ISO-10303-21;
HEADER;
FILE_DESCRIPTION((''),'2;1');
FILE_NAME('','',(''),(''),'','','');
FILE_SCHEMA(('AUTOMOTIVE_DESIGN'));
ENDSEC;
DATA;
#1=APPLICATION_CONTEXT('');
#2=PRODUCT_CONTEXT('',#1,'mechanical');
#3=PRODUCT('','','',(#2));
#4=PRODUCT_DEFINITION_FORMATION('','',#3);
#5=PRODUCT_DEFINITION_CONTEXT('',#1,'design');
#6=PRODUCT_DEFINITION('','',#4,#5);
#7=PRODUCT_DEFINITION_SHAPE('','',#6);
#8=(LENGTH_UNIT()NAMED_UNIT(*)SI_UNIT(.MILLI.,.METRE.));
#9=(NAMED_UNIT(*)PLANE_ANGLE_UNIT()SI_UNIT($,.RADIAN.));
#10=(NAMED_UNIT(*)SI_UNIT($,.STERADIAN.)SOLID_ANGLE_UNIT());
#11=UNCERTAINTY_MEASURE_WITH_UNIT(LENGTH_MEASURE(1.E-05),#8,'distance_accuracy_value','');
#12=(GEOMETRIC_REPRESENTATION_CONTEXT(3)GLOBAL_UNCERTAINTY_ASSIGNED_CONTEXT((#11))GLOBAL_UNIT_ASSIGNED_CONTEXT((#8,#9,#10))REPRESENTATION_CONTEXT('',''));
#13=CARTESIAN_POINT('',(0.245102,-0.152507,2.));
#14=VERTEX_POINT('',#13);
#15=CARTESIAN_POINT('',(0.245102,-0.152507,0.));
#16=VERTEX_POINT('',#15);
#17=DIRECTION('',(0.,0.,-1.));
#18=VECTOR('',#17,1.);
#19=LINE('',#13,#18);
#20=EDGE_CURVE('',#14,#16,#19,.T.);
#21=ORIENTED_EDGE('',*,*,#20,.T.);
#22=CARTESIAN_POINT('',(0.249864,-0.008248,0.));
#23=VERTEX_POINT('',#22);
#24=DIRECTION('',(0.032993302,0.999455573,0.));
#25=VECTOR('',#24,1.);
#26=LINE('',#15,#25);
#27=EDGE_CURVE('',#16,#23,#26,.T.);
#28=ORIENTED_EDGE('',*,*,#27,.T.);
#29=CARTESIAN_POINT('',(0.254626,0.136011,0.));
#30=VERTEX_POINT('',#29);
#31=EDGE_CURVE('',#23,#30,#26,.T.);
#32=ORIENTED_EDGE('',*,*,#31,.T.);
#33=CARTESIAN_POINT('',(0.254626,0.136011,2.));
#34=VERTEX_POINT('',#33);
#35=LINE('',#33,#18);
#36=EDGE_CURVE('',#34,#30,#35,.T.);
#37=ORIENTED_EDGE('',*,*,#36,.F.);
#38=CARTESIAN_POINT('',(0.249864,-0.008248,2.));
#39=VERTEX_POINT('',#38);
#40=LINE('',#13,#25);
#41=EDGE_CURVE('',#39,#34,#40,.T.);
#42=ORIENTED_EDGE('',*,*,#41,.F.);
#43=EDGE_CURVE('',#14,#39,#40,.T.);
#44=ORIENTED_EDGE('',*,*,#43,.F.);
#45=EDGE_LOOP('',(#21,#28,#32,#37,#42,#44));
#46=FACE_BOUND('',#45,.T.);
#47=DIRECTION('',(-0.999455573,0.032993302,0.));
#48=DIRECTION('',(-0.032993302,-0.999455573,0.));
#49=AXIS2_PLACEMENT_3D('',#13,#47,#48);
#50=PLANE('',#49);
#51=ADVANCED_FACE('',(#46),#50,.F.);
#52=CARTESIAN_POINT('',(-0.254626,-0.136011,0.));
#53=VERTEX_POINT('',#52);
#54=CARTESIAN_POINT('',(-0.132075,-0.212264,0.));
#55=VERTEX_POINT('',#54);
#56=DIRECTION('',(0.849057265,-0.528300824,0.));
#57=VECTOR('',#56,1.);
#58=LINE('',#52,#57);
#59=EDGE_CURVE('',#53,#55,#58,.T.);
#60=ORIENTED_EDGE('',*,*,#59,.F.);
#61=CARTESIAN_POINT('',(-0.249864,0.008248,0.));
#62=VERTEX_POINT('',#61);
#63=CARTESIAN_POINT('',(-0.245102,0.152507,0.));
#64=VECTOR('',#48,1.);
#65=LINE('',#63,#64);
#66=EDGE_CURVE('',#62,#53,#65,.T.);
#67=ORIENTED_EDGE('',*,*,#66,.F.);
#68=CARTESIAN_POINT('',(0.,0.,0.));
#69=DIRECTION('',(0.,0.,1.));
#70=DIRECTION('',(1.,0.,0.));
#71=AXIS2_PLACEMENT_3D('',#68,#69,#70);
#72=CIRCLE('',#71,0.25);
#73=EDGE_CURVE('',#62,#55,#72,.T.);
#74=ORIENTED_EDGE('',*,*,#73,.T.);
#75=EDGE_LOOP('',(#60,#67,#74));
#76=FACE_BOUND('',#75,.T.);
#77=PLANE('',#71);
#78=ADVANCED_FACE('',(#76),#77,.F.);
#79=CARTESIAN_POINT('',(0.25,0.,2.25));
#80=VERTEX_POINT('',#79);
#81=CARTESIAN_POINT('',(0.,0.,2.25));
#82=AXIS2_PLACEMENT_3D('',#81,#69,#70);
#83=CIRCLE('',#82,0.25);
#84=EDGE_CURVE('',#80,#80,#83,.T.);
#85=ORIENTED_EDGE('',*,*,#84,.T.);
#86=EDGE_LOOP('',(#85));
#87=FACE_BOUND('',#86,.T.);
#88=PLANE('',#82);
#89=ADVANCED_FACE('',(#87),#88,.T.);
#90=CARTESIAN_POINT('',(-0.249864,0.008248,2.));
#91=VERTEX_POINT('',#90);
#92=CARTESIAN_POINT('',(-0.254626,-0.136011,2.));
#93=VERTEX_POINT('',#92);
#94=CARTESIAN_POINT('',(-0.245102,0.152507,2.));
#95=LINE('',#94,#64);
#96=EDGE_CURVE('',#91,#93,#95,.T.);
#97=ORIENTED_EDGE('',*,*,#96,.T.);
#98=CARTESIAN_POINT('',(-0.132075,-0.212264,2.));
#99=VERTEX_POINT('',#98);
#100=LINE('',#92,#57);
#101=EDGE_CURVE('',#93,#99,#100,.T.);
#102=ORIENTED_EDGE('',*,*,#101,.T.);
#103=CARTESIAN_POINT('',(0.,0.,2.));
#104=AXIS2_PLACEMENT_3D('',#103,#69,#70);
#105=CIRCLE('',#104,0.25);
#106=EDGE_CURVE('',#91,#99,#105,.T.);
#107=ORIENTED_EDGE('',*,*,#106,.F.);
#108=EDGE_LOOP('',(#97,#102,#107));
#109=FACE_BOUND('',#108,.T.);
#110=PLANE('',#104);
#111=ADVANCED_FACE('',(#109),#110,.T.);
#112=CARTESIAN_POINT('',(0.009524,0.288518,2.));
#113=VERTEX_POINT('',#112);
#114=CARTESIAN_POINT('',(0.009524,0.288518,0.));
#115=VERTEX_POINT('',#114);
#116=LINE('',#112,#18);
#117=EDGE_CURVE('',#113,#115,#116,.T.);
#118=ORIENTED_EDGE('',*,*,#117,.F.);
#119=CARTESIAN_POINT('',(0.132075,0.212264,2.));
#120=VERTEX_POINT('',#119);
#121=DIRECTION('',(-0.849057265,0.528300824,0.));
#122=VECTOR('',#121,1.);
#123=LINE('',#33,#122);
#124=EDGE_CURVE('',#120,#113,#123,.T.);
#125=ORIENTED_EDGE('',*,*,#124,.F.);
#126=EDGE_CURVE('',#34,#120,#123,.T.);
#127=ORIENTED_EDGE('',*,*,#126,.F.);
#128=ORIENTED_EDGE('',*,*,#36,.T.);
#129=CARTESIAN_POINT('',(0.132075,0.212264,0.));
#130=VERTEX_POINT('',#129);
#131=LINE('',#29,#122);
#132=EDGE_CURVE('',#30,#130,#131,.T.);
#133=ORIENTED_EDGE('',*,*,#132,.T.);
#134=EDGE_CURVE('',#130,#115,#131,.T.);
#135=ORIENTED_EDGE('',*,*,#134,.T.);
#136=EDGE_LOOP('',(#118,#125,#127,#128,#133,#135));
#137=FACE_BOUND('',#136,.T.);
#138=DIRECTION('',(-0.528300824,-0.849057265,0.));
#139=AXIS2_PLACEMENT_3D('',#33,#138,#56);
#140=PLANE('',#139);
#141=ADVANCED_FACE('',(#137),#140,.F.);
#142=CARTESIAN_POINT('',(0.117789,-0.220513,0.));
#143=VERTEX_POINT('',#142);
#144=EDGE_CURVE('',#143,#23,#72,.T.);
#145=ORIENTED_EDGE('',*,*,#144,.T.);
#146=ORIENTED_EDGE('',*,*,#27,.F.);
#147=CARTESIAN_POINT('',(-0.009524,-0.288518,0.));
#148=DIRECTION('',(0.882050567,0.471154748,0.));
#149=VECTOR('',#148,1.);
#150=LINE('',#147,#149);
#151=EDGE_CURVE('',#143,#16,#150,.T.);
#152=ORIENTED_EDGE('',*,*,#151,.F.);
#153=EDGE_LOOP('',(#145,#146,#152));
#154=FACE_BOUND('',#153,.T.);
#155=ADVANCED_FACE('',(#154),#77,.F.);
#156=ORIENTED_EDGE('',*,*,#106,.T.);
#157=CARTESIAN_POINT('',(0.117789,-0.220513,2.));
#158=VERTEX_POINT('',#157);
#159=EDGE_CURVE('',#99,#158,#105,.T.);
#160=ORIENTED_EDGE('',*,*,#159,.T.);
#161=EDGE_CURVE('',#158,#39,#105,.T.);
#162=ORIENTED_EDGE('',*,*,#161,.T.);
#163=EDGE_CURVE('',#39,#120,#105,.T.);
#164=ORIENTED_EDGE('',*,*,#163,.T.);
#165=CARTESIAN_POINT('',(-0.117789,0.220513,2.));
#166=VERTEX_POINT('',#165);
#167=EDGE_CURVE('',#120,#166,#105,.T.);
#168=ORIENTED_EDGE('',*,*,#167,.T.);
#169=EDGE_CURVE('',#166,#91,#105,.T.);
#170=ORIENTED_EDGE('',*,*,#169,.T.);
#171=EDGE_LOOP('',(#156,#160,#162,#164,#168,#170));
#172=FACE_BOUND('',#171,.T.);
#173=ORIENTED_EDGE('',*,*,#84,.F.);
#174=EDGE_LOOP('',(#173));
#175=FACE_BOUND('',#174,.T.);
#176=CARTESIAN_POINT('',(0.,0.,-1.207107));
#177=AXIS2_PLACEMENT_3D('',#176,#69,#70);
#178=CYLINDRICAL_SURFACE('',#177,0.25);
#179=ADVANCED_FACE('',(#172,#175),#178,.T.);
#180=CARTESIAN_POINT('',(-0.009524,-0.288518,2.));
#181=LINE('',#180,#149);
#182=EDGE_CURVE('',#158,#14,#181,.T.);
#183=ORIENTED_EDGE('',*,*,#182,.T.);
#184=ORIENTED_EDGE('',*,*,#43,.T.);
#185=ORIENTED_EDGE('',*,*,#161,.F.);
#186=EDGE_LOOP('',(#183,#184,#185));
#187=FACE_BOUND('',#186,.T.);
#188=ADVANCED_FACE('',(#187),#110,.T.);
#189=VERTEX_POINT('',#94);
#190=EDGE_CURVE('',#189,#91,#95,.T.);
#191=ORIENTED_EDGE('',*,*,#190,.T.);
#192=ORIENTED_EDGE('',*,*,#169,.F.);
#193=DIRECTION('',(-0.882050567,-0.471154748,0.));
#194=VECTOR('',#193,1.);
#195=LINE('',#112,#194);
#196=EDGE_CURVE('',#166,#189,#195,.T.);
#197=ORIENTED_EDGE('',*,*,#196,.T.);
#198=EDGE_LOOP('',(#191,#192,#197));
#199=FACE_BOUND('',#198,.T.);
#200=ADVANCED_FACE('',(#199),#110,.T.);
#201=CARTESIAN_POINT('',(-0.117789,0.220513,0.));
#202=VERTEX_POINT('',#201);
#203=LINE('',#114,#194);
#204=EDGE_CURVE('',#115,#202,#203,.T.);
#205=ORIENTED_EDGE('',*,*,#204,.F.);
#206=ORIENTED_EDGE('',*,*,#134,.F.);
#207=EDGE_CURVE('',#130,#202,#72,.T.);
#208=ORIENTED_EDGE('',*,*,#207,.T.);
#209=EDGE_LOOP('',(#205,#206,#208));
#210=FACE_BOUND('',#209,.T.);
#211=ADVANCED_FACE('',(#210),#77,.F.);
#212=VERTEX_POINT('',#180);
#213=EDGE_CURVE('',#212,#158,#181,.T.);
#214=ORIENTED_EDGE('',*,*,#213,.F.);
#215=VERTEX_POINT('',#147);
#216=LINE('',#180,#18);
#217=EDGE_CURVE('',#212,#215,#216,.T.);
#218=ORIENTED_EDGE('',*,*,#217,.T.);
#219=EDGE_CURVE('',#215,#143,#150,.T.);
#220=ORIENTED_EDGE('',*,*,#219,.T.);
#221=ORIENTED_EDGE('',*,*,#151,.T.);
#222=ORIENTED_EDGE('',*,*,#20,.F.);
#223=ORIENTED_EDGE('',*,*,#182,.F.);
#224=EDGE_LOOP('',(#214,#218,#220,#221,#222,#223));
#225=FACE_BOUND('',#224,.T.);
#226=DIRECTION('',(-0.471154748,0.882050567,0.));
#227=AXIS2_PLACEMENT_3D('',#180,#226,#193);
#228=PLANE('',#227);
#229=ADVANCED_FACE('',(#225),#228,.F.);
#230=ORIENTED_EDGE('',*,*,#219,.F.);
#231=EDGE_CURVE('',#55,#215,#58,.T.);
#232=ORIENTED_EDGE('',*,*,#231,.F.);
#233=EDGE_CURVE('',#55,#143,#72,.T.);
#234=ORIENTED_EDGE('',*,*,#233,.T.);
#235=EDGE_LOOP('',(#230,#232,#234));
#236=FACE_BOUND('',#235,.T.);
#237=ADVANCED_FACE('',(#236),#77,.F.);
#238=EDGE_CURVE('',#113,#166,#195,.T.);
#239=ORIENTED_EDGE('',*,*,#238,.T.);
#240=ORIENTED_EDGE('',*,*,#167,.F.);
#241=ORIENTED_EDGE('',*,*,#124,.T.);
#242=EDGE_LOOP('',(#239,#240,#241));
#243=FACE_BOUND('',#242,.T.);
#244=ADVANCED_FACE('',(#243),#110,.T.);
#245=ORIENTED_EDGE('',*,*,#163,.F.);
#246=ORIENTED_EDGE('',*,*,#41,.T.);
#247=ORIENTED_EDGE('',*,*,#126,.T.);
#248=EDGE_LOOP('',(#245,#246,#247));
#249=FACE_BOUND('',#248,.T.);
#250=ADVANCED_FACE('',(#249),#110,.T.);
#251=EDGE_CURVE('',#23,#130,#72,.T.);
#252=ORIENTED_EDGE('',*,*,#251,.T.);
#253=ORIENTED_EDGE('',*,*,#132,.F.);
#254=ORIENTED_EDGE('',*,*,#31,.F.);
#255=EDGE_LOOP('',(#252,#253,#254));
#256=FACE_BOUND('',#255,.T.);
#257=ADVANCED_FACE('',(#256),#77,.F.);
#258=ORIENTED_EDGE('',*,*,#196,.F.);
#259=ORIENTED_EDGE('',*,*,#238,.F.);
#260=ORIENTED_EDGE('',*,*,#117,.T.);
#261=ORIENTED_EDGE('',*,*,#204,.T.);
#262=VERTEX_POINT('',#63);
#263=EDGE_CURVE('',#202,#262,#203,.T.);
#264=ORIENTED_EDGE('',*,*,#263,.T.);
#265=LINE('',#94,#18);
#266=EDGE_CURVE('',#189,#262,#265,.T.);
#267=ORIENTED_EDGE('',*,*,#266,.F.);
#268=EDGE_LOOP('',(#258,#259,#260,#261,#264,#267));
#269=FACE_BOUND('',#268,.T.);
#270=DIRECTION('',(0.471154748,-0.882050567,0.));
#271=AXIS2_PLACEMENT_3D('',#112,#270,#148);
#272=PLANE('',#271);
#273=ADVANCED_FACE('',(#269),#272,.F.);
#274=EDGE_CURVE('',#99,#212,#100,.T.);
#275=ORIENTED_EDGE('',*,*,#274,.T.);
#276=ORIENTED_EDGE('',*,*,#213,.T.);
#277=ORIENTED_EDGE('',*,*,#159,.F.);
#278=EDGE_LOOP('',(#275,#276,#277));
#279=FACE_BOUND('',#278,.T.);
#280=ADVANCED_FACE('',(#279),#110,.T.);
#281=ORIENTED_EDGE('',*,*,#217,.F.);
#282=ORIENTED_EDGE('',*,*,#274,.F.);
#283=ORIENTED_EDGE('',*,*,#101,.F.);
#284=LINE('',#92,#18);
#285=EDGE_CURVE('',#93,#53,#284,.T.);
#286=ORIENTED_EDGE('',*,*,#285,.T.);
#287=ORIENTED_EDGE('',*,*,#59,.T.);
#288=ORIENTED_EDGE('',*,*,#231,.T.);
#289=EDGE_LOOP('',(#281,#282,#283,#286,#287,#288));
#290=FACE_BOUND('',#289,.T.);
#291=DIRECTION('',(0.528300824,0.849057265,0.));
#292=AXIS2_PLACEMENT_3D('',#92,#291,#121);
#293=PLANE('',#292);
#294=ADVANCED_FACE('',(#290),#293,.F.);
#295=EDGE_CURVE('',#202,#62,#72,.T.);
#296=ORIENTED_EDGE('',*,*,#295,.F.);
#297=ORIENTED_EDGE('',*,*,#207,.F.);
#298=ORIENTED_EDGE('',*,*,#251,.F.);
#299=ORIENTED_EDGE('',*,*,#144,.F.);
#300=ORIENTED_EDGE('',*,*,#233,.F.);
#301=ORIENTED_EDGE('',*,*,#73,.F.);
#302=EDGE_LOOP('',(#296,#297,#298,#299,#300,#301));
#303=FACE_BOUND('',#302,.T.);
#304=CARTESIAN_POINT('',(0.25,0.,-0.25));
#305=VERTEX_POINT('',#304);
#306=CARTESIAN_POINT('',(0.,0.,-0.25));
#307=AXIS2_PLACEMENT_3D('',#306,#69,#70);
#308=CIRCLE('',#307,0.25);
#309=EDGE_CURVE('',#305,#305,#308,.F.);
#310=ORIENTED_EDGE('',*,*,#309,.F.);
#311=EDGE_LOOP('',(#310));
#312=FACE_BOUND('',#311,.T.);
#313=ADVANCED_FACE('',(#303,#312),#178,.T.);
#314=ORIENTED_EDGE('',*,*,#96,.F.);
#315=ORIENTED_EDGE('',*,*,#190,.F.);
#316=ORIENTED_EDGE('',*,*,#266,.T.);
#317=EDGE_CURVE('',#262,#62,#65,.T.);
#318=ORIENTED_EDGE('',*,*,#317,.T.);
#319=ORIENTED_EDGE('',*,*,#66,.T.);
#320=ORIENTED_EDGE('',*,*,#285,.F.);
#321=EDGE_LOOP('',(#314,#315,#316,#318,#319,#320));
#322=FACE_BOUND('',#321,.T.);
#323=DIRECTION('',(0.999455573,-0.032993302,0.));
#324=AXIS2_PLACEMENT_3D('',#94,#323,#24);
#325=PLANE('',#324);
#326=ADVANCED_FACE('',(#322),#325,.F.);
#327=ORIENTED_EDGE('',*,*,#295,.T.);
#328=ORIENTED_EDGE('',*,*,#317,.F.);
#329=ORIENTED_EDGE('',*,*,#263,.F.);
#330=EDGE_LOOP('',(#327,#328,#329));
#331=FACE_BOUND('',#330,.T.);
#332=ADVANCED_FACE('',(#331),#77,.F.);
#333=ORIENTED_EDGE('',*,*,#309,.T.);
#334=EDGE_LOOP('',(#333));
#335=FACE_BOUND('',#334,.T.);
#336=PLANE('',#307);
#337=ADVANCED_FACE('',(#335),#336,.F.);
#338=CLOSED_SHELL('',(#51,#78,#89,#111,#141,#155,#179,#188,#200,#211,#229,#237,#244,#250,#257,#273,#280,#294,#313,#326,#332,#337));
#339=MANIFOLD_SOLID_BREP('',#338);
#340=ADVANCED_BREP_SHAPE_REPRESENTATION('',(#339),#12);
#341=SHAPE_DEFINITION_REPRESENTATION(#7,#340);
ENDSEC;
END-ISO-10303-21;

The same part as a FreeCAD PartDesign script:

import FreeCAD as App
import Part
import Sketcher
from FreeCAD import Vector
Q = App.Units.Quantity

doc = App.newDocument("Part")
params = doc.addObject("Spreadsheet::Sheet", "Params")
for row, (alias, value) in enumerate([
    ("pad1_length", "2 mm"),
    ("sketch2_diameter", "0.5 mm"),
    ("pad2_length", "0.25 mm"),
    ("pad2_length2", "2.25 mm"),
], start=1):
    params.set(f"A{row}", alias)
    params.set(f"B{row}", "=" + value)
    params.setAlias(f"B{row}", alias)

body = doc.addObject("PartDesign::Body", "Body")

# Sketch on XY plane
sketch1 = body.newObject("Sketcher::SketchObject", "Sketch")
sketch1.AttachmentSupport = (doc.getObject("XY_Plane"), [""])
sketch1.MapMode = "FlatFace"
sketch1.addGeometry(Part.LineSegment(Vector(-0.25, 0.15, 0), Vector(-0.25, -0.14, 0)), False)
sketch1.addGeometry(Part.LineSegment(Vector(-0.25, -0.14, 0), Vector(-0.01, -0.29, 0)), False)
sketch1.addGeometry(Part.LineSegment(Vector(-0.01, -0.29, 0), Vector(0.25, -0.15, 0)), False)
sketch1.addGeometry(Part.LineSegment(Vector(0.25, -0.15, 0), Vector(0.25, 0.14, 0)), False)
sketch1.addGeometry(Part.LineSegment(Vector(0.25, 0.14, 0), Vector(0.01, 0.29, 0)), False)
sketch1.addGeometry(Part.LineSegment(Vector(0.01, 0.29, 0), Vector(-0.25, 0.15, 0)), False)
sketch1.addConstraint(Sketcher.Constraint("Coincident", 0, 2, 1, 1))
sketch1.addConstraint(Sketcher.Constraint("Coincident", 1, 2, 2, 1))
sketch1.addConstraint(Sketcher.Constraint("Coincident", 2, 2, 3, 1))
sketch1.addConstraint(Sketcher.Constraint("Coincident", 3, 2, 4, 1))
sketch1.addConstraint(Sketcher.Constraint("Coincident", 4, 2, 5, 1))
sketch1.addConstraint(Sketcher.Constraint("Coincident", 5, 2, 0, 1))
sketch1.addConstraint(Sketcher.Constraint("Symmetric", 0, 2, 3, 2, -1, 1))
sketch1.addConstraint(Sketcher.Constraint("Symmetric", 1, 2, 4, 2, -1, 1))
sketch1.addConstraint(Sketcher.Constraint("Symmetric", 2, 2, 5, 2, -1, 1))
sketch1.addConstraint(Sketcher.Constraint("Equal", 0, 1))
sketch1.addConstraint(Sketcher.Constraint("Equal", 1, 2))
sketch1.addConstraint(Sketcher.Constraint("DistanceX", -1, 1, 2, 2, Q("0.245102 mm")))
sketch1.addConstraint(Sketcher.Constraint("DistanceX", 0, 2, 1, 2, Q("0.245102 mm")))
sketch1.addConstraint(Sketcher.Constraint("DistanceY", 0, 2, -1, 1, Q("0.136011 mm")))
sketch1.addConstraint(Sketcher.Constraint("DistanceY", 1, 2, 2, 2, Q("0.136011 mm")))
pad1 = body.newObject("PartDesign::Pad", "Pad")
pad1.Profile = sketch1
pad1.setExpression("Length", "Params.pad1_length")

# Sketch on XY plane
sketch2 = body.newObject("Sketcher::SketchObject", "Sketch001")
sketch2.AttachmentSupport = (doc.getObject("XY_Plane"), [""])
sketch2.MapMode = "FlatFace"
sketch2.AttachmentOffset = App.Placement(Vector(0, 0, 2), App.Rotation())
sketch2.addGeometry(Part.Circle(Vector(0, 0, 0), Vector(0, 0, 1), 0.25), False)
sketch2.addConstraint(Sketcher.Constraint("Coincident", 0, 3, -1, 1))
sketch2.addConstraint(Sketcher.Constraint("Diameter", 0, Q("0.5 mm")))
sketch2.setExpression("Constraints[1]", "Params.sketch2_diameter")
pad2 = body.newObject("PartDesign::Pad", "Pad001")
pad2.Profile = sketch2
pad2.Type = "TwoLengths"
pad2.setExpression("Length", "Params.pad2_length")
pad2.setExpression("Length2", "Params.pad2_length2")

doc.recompute()
